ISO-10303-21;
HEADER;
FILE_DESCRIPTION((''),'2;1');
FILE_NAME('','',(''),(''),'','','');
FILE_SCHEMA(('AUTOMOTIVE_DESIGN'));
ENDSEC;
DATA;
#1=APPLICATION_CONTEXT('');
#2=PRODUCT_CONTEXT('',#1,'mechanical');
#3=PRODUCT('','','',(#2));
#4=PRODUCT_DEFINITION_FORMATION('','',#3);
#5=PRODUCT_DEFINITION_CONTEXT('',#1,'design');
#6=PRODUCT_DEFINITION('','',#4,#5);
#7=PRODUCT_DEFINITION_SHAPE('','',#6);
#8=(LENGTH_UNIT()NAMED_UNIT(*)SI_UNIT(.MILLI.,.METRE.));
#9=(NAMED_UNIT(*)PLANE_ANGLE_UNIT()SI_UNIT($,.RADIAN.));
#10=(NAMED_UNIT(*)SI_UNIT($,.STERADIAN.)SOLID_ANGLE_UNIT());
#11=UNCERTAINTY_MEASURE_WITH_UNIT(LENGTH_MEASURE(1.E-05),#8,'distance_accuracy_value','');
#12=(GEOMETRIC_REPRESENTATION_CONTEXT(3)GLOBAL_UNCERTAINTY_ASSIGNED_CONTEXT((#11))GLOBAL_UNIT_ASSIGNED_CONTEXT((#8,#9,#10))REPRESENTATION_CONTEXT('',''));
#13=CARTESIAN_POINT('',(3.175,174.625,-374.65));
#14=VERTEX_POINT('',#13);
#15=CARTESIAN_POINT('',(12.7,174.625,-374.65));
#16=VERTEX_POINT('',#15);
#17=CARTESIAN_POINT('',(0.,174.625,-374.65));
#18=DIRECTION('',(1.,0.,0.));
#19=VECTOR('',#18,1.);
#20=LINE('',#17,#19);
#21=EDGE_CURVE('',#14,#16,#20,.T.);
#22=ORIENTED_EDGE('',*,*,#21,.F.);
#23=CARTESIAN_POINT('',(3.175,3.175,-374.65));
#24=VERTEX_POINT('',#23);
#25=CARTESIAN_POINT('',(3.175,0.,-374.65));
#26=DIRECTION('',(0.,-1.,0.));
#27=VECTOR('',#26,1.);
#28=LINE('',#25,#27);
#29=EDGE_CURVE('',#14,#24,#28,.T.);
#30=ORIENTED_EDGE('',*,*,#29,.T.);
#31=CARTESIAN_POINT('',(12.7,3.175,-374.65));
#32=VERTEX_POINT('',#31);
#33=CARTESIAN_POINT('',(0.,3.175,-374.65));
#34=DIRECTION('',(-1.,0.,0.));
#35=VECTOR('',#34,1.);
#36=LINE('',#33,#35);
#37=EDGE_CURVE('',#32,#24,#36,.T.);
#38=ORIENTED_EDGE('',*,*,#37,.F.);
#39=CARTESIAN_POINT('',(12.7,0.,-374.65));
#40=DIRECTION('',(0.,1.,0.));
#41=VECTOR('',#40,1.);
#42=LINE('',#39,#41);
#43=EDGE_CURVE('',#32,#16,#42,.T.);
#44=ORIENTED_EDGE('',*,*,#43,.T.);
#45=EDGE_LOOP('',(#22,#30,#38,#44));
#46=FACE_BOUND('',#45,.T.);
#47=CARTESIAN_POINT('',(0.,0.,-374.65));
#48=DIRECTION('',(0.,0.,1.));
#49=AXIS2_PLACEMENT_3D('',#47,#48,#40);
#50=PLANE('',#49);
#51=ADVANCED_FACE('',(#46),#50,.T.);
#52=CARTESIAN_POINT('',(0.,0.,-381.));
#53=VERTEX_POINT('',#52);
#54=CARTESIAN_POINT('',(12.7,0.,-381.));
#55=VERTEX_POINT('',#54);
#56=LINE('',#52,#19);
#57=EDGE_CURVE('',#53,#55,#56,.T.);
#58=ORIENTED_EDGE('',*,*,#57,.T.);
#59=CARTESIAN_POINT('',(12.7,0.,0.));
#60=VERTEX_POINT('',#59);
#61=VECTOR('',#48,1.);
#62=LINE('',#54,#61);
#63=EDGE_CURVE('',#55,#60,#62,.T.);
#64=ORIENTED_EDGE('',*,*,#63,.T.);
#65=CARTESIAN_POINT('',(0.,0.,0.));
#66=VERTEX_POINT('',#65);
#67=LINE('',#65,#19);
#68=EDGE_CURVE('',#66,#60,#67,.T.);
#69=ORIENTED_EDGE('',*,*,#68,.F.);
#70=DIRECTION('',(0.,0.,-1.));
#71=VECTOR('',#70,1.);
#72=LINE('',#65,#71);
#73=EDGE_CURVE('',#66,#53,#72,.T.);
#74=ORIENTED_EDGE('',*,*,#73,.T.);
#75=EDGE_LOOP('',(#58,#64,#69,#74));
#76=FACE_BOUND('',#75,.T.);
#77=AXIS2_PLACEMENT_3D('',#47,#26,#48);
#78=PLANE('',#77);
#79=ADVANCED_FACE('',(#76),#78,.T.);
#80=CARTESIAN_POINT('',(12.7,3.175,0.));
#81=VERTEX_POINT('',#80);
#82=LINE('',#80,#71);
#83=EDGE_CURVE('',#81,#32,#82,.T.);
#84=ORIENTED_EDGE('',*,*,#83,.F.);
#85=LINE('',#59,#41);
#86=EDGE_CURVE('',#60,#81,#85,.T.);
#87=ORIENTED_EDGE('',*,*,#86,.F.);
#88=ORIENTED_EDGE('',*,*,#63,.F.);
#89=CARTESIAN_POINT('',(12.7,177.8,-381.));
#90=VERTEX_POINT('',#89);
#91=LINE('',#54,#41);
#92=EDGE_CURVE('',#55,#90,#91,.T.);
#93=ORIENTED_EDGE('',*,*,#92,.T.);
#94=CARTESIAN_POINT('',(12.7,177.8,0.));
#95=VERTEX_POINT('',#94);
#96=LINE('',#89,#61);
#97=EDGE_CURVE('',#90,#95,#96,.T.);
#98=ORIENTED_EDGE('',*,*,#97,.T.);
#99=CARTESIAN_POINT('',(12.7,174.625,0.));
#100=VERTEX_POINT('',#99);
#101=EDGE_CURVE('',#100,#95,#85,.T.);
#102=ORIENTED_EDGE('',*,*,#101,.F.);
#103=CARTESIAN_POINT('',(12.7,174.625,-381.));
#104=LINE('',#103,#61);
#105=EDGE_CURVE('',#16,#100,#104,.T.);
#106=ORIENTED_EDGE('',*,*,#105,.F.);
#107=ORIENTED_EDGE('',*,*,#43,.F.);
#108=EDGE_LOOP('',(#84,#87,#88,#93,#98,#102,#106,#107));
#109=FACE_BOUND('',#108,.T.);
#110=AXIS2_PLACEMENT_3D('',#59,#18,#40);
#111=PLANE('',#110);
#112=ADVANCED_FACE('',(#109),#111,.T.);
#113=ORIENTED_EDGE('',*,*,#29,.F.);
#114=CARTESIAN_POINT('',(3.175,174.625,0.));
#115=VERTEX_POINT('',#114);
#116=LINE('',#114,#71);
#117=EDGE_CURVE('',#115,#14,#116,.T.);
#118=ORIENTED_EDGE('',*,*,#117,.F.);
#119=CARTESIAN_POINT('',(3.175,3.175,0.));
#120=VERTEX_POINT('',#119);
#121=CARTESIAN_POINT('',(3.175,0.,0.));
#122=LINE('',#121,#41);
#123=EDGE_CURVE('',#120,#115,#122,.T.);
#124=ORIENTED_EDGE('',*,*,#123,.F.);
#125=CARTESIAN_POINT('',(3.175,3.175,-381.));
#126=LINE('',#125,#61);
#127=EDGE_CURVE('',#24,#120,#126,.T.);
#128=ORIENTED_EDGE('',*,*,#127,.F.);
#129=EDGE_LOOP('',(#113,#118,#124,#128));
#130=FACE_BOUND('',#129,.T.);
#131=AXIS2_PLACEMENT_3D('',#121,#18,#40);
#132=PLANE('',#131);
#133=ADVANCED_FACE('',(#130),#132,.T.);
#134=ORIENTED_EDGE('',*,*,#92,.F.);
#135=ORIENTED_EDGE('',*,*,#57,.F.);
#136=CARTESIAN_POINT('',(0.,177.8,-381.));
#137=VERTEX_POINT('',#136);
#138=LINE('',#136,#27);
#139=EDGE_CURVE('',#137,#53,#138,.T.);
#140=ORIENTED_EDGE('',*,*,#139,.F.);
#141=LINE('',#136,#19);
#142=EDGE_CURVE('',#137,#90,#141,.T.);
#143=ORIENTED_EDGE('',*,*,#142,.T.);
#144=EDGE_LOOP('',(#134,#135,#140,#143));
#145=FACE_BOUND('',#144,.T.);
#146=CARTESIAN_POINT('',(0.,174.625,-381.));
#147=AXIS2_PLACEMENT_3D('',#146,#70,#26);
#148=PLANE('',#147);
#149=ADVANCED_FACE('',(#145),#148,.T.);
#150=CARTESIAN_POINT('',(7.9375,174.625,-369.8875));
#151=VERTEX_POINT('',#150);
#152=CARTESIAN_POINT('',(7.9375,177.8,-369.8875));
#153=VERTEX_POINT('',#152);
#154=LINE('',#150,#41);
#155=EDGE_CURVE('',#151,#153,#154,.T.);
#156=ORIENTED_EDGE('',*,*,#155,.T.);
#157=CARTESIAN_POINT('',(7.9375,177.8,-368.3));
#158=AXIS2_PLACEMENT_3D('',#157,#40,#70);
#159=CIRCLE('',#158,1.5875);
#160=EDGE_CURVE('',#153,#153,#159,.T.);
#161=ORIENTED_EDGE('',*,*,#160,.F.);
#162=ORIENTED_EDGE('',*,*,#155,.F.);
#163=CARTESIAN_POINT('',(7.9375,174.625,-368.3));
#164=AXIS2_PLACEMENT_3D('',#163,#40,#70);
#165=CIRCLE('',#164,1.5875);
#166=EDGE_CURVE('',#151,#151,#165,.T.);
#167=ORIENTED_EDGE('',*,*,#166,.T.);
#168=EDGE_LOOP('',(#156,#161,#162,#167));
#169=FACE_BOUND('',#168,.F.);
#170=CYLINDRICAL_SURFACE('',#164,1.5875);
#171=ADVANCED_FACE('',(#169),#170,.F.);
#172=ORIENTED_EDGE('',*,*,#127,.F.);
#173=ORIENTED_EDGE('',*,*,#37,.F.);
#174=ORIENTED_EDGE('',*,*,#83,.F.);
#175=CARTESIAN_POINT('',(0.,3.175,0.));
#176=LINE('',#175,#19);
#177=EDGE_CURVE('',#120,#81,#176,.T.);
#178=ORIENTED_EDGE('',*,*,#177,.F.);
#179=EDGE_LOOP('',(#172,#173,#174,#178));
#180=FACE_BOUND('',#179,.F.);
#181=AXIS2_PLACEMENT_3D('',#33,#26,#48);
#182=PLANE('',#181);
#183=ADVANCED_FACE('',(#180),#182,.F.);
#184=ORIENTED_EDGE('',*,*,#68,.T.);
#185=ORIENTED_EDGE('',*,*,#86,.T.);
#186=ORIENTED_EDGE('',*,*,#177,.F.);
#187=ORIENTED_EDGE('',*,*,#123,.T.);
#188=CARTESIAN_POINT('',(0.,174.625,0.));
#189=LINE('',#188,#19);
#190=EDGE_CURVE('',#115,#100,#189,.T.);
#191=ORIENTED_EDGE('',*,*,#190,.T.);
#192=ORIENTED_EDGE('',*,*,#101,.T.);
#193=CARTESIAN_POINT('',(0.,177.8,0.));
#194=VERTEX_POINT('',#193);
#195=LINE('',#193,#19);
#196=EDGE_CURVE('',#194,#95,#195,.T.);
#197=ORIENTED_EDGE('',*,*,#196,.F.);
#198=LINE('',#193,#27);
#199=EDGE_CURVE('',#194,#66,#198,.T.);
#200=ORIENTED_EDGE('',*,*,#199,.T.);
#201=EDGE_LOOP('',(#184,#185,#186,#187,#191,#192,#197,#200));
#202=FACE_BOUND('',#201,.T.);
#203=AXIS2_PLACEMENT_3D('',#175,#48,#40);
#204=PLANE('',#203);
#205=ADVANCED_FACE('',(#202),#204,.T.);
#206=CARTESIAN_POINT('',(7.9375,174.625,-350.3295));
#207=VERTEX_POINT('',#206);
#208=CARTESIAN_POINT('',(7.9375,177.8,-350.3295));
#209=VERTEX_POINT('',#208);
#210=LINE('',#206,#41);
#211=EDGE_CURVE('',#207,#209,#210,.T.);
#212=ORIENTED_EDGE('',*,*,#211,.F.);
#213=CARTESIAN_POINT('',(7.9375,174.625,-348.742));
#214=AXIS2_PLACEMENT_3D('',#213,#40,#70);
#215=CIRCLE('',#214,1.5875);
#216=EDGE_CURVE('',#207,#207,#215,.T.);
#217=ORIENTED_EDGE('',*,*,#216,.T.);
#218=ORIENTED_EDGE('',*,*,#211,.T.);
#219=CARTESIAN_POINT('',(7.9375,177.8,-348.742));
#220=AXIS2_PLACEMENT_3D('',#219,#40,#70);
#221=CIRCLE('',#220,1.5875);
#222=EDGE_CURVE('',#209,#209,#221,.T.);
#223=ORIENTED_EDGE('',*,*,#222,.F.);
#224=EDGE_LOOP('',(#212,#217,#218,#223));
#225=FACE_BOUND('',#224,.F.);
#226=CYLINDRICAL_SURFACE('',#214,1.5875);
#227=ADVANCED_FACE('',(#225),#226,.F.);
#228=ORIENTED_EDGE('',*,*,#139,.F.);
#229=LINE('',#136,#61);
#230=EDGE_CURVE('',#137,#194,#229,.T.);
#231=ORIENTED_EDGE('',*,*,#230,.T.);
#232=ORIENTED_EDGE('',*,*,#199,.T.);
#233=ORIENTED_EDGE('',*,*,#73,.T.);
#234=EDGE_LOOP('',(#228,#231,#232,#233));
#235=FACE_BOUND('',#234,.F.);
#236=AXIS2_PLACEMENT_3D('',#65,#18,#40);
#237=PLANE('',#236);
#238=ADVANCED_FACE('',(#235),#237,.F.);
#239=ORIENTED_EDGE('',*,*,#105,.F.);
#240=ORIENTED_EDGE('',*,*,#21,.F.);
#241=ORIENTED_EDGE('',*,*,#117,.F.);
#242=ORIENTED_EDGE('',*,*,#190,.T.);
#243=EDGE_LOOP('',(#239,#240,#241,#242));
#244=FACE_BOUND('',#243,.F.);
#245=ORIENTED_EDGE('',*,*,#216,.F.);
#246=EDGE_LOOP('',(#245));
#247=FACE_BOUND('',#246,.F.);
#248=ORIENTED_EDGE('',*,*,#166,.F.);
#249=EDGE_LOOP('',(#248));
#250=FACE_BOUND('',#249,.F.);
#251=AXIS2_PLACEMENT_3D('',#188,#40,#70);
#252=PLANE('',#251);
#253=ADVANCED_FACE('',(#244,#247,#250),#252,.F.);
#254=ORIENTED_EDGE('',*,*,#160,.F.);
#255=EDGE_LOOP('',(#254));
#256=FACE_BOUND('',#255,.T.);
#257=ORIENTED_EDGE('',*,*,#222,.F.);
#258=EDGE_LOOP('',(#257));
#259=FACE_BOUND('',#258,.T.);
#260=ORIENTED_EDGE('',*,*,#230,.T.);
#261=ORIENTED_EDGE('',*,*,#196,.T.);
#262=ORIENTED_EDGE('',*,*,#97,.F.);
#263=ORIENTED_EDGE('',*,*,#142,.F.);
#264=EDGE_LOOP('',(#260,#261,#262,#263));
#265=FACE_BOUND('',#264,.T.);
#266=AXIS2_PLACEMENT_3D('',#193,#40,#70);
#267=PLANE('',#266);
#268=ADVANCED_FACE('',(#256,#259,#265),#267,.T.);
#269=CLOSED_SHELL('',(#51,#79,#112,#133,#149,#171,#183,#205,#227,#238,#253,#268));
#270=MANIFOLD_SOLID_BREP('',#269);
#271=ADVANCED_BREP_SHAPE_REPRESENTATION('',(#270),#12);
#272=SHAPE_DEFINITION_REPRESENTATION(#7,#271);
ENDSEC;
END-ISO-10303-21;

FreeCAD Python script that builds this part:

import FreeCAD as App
import Part
import Sketcher

V = App.Vector
Q = App.Units.Quantity

doc = App.newDocument("Part")
body = doc.addObject("PartDesign::Body", "Body")

# Sketch on YZ plane
sketch1 = doc.addObject("Sketcher::SketchObject", "Sketch")
body.addObject(sketch1)
sketch1.AttachmentSupport = (doc.YZ_Plane, [""])
sketch1.MapMode = "FlatFace"
sketch1.addGeometry([
    Part.LineSegment(V(174.625, 0, 0), V(3.175, 0, 0)),
    Part.LineSegment(V(3.175, 0, 0), V(3.175, -381, 0)),
    Part.LineSegment(V(3.175, -381, 0), V(174.625, -381, 0)),
    Part.LineSegment(V(174.625, -381, 0), V(174.625, 0, 0)),
], False)
sketch1.addConstraint([
    Sketcher.Constraint("Coincident", 0, 2, 1, 1),
    Sketcher.Constraint("Coincident", 1, 2, 2, 1),
    Sketcher.Constraint("Coincident", 2, 2, 3, 1),
    Sketcher.Constraint("Coincident", 3, 2, 0, 1),
    Sketcher.Constraint("Horizontal", 0),
    Sketcher.Constraint("Vertical", 1),
    Sketcher.Constraint("Horizontal", 2),
    Sketcher.Constraint("Vertical", 3),
    Sketcher.Constraint("PointOnObject", 0, 2, -1),
    Sketcher.Constraint("DistanceY", 1, 2, 1, 1, Q("15 in")),
    Sketcher.Constraint("DistanceX", 0, 2, 0, 1, Q("6.75 in")),
    Sketcher.Constraint("DistanceX", -1, 1, 0, 2, Q("0.125 in")),
])
pad1 = doc.addObject("PartDesign::Pad", "Pad")
body.addObject(pad1)
pad1.Profile = sketch1
pad1.Length = Q("0.125 in")

# Sketch on YZ plane
sketch2 = doc.addObject("Sketcher::SketchObject", "Sketch001")
body.addObject(sketch2)
sketch2.AttachmentSupport = (doc.YZ_Plane, [""])
sketch2.MapMode = "FlatFace"
sketch2.addGeometry([
    Part.LineSegment(V(3.175, 0, 0), V(0, 0, 0)),  # 0
    Part.LineSegment(V(0, 0, 0), V(0, -381, 0)),  # 1
    Part.LineSegment(V(0, -381, 0), V(3.175, -381, 0)),  # 2
    Part.LineSegment(V(3.175, -381, 0), V(3.175, 0, 0)),  # 3
    Part.LineSegment(V(177.8, 0, 0), V(174.625, 0, 0)),  # 4
    Part.LineSegment(V(174.625, 0, 0), V(174.625, -381, 0)),  # 5
    Part.LineSegment(V(174.625, -381, 0), V(177.8, -381, 0)),  # 6
    Part.LineSegment(V(177.8, -381, 0), V(177.8, 0, 0)),  # 7
], False)
sketch2.addConstraint([
    Sketcher.Constraint("Coincident", 0, 2, 1, 1),
    Sketcher.Constraint("Coincident", 1, 2, 2, 1),
    Sketcher.Constraint("Coincident", 2, 2, 3, 1),
    Sketcher.Constraint("Coincident", 3, 2, 0, 1),
    Sketcher.Constraint("Coincident", 4, 2, 5, 1),
    Sketcher.Constraint("Coincident", 5, 2, 6, 1),
    Sketcher.Constraint("Coincident", 6, 2, 7, 1),
    Sketcher.Constraint("Coincident", 7, 2, 4, 1),
    Sketcher.Constraint("Horizontal", 0),
    Sketcher.Constraint("Vertical", 1),
    Sketcher.Constraint("Horizontal", 2),
    Sketcher.Constraint("Vertical", 3),
    Sketcher.Constraint("Horizontal", 4),
    Sketcher.Constraint("Vertical", 5),
    Sketcher.Constraint("Horizontal", 6),
    Sketcher.Constraint("Vertical", 7),
    Sketcher.Constraint("Coincident", 0, 2, -1, 1),
    Sketcher.Constraint("PointOnObject", 4, 2, -1),
    Sketcher.Constraint("Horizontal", 2, 2, 5, 2),
    Sketcher.Constraint("Equal", 2, 4),
    Sketcher.Constraint("DistanceY", 1, 2, 1, 1, Q("15 in")),
    Sketcher.Constraint("DistanceX", -1, 1, 6, 2, Q("7 in")),
    Sketcher.Constraint("DistanceX", 0, 2, 0, 1, Q("0.125 in")),
])
pad2 = doc.addObject("PartDesign::Pad", "Pad001")
body.addObject(pad2)
pad2.Profile = sketch2
pad2.Length = Q("0.5 in")

# Sketch on YZ plane
sketch3 = doc.addObject("Sketcher::SketchObject", "Sketch002")
body.addObject(sketch3)
sketch3.AttachmentSupport = (doc.YZ_Plane, [""])
sketch3.MapMode = "FlatFace"
sketch3.addGeometry([
    Part.LineSegment(V(0, -374.65, 0), V(0, -381, 0)),
    Part.LineSegment(V(0, -381, 0), V(177.8, -381, 0)),
    Part.LineSegment(V(177.8, -381, 0), V(177.8, -374.65, 0)),
    Part.LineSegment(V(177.8, -374.65, 0), V(0, -374.65, 0)),
], False)
sketch3.addConstraint([
    Sketcher.Constraint("Coincident", 0, 2, 1, 1),
    Sketcher.Constraint("Coincident", 1, 2, 2, 1),
    Sketcher.Constraint("Coincident", 2, 2, 3, 1),
    Sketcher.Constraint("Coincident", 3, 2, 0, 1),
    Sketcher.Constraint("Vertical", 0),
    Sketcher.Constraint("Horizontal", 1),
    Sketcher.Constraint("Vertical", 2),
    Sketcher.Constraint("Horizontal", 3),
    Sketcher.Constraint("PointOnObject", 0, 2, -2),
    Sketcher.Constraint("DistanceX", 1, 1, 1, 2, Q("7 in")),
    Sketcher.Constraint("DistanceY", 0, 2, -1, 1, Q("15 in")),
    Sketcher.Constraint("DistanceY", 0, 2, 0, 1, Q("0.25 in")),
])
pad3 = doc.addObject("PartDesign::Pad", "Pad002")
body.addObject(pad3)
pad3.Profile = sketch3
pad3.Length = Q("0.5 in")

# Sketch on XZ plane
sketch4 = doc.addObject("Sketcher::SketchObject", "Sketch003")
body.addObject(sketch4)
sketch4.AttachmentSupport = (doc.XZ_Plane, [""])
sketch4.MapMode = "FlatFace"
sketch4.AttachmentOffset = App.Placement(V(0, 0, -6.875 * 25.4), App.Rotation())
sketch4.addGeometry([
    Part.Circle(V(7.9375, -368.3, 0), V(0, 0, 1), 1.5875),
    Part.Circle(V(7.9375, -348.742, 0), V(0, 0, 1), 1.5875),
], False)
sketch4.addConstraint([
    Sketcher.Constraint("Equal", 0, 1),
    Sketcher.Constraint("Vertical", 0, 3, 1, 3),
    Sketcher.Constraint("Diameter", 0, Q("0.125 in")),
    Sketcher.Constraint("DistanceY", 0, 3, -1, 1, Q("14.5 in")),
    Sketcher.Constraint("DistanceY", 1, 3, -1, 1, Q("13.73 in")),
    Sketcher.Constraint("DistanceX", -1, 1, 0, 3, Q("0.3125 in")),
])
doc.recompute()
hole = doc.addObject("PartDesign::Hole", "Hole")
body.addObject(hole)
hole.Profile = sketch4
hole.ThreadType = "None"
hole.Diameter = Q("0.125 in")
hole.DepthType = "Dimension"
hole.Depth = Q("1 in")
hole.DrillPoint = "Angled"
hole.DrillPointAngle = 118

doc.recompute()
